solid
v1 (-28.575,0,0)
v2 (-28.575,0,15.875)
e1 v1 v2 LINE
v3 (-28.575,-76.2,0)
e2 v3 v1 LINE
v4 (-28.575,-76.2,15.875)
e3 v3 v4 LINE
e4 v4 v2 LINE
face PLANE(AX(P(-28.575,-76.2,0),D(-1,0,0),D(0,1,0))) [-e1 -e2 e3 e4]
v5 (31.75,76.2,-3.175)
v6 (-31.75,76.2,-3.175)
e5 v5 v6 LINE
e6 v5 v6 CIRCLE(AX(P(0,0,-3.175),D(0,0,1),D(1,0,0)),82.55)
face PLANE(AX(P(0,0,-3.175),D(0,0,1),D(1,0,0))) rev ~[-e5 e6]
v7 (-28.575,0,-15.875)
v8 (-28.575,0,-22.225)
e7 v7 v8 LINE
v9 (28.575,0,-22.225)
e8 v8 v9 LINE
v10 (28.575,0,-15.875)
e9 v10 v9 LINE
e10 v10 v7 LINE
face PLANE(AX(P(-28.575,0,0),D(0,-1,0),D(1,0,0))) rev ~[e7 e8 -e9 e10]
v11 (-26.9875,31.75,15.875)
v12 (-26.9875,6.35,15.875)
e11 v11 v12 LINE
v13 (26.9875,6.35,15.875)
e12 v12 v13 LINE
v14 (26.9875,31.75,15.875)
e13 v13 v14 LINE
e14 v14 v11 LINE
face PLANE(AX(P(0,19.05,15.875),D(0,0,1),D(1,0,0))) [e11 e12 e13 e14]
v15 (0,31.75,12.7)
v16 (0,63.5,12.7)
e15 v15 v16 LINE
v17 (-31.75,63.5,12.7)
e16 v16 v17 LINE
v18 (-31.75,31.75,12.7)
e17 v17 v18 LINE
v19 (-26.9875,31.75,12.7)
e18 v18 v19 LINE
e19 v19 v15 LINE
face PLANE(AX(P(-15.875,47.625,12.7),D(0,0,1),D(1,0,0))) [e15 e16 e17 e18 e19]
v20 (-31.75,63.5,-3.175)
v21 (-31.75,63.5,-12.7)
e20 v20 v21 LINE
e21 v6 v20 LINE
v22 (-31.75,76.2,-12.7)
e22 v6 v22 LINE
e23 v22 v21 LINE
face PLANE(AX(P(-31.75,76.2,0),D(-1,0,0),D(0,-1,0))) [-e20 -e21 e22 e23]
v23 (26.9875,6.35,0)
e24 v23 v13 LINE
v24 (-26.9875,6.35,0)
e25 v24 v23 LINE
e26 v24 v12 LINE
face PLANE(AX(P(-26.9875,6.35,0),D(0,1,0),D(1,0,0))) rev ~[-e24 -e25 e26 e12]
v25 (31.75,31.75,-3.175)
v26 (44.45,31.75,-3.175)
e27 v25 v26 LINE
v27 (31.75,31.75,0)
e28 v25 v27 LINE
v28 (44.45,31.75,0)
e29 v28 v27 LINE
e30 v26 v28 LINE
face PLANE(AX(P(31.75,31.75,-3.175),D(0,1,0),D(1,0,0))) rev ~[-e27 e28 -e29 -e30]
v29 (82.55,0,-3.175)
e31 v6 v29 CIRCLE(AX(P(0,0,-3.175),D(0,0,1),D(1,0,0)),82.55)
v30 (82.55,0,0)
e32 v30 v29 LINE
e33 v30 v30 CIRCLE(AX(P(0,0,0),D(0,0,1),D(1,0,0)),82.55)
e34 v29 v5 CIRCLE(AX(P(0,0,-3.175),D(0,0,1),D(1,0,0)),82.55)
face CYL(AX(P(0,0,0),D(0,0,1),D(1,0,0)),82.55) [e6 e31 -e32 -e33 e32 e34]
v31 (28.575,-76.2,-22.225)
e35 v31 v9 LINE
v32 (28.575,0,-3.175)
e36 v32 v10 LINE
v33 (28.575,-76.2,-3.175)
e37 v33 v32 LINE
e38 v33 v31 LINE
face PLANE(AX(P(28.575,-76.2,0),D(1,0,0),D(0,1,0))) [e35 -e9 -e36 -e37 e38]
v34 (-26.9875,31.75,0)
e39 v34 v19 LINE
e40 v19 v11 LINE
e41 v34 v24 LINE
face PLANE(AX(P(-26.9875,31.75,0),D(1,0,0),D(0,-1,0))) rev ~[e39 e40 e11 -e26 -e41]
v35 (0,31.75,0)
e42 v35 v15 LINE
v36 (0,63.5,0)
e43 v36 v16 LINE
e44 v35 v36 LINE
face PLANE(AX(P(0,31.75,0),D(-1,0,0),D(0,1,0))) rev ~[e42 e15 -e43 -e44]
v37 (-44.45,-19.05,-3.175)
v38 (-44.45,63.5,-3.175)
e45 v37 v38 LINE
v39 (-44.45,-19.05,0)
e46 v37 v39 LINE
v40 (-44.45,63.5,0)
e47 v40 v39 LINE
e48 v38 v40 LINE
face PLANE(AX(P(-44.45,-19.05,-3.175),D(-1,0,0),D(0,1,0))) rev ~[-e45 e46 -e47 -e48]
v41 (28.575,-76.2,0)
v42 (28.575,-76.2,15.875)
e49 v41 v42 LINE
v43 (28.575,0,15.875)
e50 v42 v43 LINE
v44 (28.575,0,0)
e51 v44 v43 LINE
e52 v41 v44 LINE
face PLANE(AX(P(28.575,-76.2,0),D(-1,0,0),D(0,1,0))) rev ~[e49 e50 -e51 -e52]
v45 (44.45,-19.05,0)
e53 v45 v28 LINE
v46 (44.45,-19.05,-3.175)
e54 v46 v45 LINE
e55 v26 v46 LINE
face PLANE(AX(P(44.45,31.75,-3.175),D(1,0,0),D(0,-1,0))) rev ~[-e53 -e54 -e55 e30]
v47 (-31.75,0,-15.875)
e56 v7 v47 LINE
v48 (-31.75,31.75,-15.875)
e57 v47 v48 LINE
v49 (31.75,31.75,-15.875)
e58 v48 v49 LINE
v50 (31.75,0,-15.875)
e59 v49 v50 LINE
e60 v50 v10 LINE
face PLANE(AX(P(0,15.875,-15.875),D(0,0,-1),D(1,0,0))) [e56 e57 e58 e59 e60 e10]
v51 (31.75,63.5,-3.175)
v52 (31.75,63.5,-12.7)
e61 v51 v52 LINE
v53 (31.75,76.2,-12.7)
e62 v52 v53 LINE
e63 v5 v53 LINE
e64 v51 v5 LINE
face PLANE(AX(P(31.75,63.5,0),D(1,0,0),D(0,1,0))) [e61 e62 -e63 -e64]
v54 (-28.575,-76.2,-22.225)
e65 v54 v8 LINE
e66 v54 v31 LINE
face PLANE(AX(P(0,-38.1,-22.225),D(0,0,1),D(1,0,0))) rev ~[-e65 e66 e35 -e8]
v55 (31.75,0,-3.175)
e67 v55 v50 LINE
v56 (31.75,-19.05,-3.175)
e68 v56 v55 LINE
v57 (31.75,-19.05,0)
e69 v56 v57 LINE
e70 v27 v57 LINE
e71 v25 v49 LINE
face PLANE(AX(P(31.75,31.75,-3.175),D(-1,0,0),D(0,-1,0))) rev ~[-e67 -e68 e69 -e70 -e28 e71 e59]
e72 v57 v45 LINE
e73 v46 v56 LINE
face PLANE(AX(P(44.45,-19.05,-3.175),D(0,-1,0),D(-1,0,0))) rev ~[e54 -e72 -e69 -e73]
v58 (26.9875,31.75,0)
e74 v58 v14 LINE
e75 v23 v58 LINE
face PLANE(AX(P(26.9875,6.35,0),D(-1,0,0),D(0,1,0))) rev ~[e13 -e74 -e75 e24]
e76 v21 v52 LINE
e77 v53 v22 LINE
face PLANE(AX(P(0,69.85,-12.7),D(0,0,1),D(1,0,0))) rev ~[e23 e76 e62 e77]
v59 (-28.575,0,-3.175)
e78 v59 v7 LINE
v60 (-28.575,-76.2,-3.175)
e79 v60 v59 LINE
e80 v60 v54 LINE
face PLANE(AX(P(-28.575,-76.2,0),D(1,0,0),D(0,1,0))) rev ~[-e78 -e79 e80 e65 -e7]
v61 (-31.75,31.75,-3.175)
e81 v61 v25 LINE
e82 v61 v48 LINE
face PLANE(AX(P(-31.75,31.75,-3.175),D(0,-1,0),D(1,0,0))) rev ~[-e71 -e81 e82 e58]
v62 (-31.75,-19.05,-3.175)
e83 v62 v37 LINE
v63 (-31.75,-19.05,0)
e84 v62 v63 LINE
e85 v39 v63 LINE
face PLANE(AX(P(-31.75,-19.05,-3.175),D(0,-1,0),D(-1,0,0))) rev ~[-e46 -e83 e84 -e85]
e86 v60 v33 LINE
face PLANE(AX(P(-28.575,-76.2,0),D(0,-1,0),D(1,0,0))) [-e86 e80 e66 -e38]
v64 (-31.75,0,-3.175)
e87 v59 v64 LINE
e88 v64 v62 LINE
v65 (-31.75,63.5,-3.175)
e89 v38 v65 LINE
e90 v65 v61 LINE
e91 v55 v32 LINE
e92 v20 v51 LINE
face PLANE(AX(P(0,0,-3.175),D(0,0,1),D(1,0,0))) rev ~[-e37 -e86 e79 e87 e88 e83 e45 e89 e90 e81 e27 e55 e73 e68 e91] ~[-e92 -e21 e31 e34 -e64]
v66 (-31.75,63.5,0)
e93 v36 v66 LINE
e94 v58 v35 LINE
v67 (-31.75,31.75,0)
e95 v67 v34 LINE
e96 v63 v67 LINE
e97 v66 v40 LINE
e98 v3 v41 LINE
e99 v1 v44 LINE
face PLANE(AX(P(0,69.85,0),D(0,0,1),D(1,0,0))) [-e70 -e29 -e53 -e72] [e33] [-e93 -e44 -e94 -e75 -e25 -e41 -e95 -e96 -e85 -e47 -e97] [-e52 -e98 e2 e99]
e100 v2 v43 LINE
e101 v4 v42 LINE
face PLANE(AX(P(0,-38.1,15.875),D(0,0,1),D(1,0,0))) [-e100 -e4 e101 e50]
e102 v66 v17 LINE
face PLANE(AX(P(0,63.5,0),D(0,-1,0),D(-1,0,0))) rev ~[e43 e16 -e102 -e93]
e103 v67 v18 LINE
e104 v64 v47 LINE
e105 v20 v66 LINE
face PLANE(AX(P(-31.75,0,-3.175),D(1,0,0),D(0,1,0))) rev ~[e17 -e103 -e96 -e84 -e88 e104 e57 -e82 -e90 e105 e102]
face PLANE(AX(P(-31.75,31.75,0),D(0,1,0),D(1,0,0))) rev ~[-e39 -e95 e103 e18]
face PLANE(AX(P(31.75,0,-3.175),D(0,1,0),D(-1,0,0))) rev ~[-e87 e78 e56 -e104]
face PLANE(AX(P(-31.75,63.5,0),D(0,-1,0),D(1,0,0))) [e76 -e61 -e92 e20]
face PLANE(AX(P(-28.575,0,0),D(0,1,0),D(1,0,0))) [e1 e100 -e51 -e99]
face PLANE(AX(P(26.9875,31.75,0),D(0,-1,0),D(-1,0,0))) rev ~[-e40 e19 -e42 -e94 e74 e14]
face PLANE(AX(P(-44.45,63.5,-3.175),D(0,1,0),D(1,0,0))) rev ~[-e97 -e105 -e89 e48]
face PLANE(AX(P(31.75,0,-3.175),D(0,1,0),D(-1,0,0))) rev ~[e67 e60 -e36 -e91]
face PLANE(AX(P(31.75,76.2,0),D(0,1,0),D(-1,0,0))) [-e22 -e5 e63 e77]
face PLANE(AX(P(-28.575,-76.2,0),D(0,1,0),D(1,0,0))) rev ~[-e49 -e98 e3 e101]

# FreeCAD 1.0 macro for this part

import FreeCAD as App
import Part
import Sketcher
from FreeCAD import Vector
Q = App.Units.Quantity


def add_polygon(sketch, points):
    """Adds a closed chain of lines whose ends are joined by coincident constraints."""
    first, n = sketch.GeometryCount, len(points)
    for a, b in zip(points, points[1:] + points[:1]):
        sketch.addGeometry(Part.LineSegment(App.Vector(*a, 0), App.Vector(*b, 0)), False)
    for i in range(n):
        sketch.addConstraint(Sketcher.Constraint("Coincident", first + i, 2, first + (i + 1) % n, 1))

doc = App.newDocument("Part")
body = doc.addObject("PartDesign::Body", "Body")

# Sketch on XY plane
sketch1 = body.newObject("Sketcher::SketchObject", "Sketch")
sketch1.AttachmentSupport = (doc.getObject("XY_Plane"), [""])
sketch1.MapMode = "FlatFace"
sketch1.addGeometry(Part.Circle(Vector(0, 0, 0), Vector(0, 0, 1), 83), False)
sketch1.addConstraint(Sketcher.Constraint("Coincident", 0, 3, -1, 1))
sketch1.addConstraint(Sketcher.Constraint("Diameter", 0, Q("6.5 in")))
pad1 = body.newObject("PartDesign::Pad", "Pad")
pad1.Profile = sketch1
pad1.Length = Q("0.125 in")
pad1.Reversed = True

# Sketch on XY plane
sketch2 = body.newObject("Sketcher::SketchObject", "Sketch001")
sketch2.AttachmentSupport = (doc.getObject("XY_Plane"), [""])
sketch2.MapMode = "FlatFace"
add_polygon(sketch2, [(-29, 0), (-29, -76), (29, -76), (29, 0)])  # lines 0-3
sketch2.addConstraint(Sketcher.Constraint("Vertical", 0))
sketch2.addConstraint(Sketcher.Constraint("Horizontal", 1))
sketch2.addConstraint(Sketcher.Constraint("Vertical", 2))
sketch2.addConstraint(Sketcher.Constraint("Horizontal", 3))
sketch2.addConstraint(Sketcher.Constraint("Symmetric", 2, 2, 3, 2, -1, 1))
sketch2.addConstraint(Sketcher.Constraint("DistanceY", 0, 2, 0, 1, Q("3 in")))
sketch2.addConstraint(Sketcher.Constraint("DistanceX", 1, 1, 1, 2, Q("2.25 in")))
pad2 = body.newObject("PartDesign::Pad", "Pad001")
pad2.Profile = sketch2
pad2.Length = Q("0.625 in")

# Sketch on XY plane
sketch3 = body.newObject("Sketcher::SketchObject", "Sketch002")
sketch3.AttachmentSupport = (doc.getObject("XY_Plane"), [""])
sketch3.MapMode = "FlatFace"
add_polygon(sketch3, [(-29, 0), (-29, -76), (29, -76), (29, 0)])  # lines 0-3
sketch3.addConstraint(Sketcher.Constraint("Vertical", 0))
sketch3.addConstraint(Sketcher.Constraint("Horizontal", 1))
sketch3.addConstraint(Sketcher.Constraint("Vertical", 2))
sketch3.addConstraint(Sketcher.Constraint("Horizontal", 3))
sketch3.addConstraint(Sketcher.Constraint("Symmetric", 2, 2, 3, 2, -1, 1))
sketch3.addConstraint(Sketcher.Constraint("DistanceY", 0, 2, 0, 1, Q("3 in")))
sketch3.addConstraint(Sketcher.Constraint("DistanceX", 1, 1, 1, 2, Q("2.25 in")))
pad3 = body.newObject("PartDesign::Pad", "Pad002")
pad3.Profile = sketch3
pad3.Length = Q("0.875 in")
pad3.Reversed = True

# Sketch on XY plane
sketch4 = body.newObject("Sketcher::SketchObject", "Sketch003")
sketch4.AttachmentSupport = (doc.getObject("XY_Plane"), [""])
sketch4.MapMode = "FlatFace"
add_polygon(sketch4, [(-32, 76), (-32, 64), (32, 64), (32, 76)])  # lines 0-3
sketch4.addConstraint(Sketcher.Constraint("Vertical", 0))
sketch4.addConstraint(Sketcher.Constraint("Horizontal", 1))
sketch4.addConstraint(Sketcher.Constraint("Vertical", 2))
sketch4.addConstraint(Sketcher.Constraint("Horizontal", 3))
sketch4.addConstraint(Sketcher.Constraint("DistanceX", 1, 1, 1, 2, Q("2.5 in")))
sketch4.addConstraint(Sketcher.Constraint("DistanceY", 0, 2, 0, 1, Q("0.5 in")))
sketch4.addConstraint(Sketcher.Constraint("DistanceY", -1, 1, 2, 2, Q("3 in")))
sketch4.addConstraint(Sketcher.Constraint("DistanceX", 0, 2, -1, 1, Q("1.25 in")))
pad4 = body.newObject("PartDesign::Pad", "Pad003")
pad4.Profile = sketch4
pad4.Length = Q("0.5 in")
pad4.Reversed = True

# Sketch on XY plane
sketch5 = body.newObject("Sketcher::SketchObject", "Sketch004")
sketch5.AttachmentSupport = (doc.getObject("XY_Plane"), [""])
sketch5.MapMode = "FlatFace"
add_polygon(sketch5, [(0, 64), (-32, 64), (-32, 32), (0, 32)])  # lines 0-3
sketch5.addConstraint(Sketcher.Constraint("Horizontal", 0))
sketch5.addConstraint(Sketcher.Constraint("Vertical", 1))
sketch5.addConstraint(Sketcher.Constraint("Horizontal", 2))
sketch5.addConstraint(Sketcher.Constraint("Vertical", 3))
sketch5.addConstraint(Sketcher.Constraint("PointOnObject", 2, 2, -2))
sketch5.addConstraint(Sketcher.Constraint("Equal", 2, 1))
sketch5.addConstraint(Sketcher.Constraint("DistanceX", 0, 2, 0, 1, Q("1.25 in")))
sketch5.addConstraint(Sketcher.Constraint("DistanceY", -1, 1, 0, 2, Q("2.5 in")))
pad5 = body.newObject("PartDesign::Pad", "Pad004")
pad5.Profile = sketch5
pad5.Length = Q("0.5 in")

# Sketch on XY plane
sketch6 = body.newObject("Sketcher::SketchObject", "Sketch005")
sketch6.AttachmentSupport = (doc.getObject("XY_Plane"), [""])
sketch6.MapMode = "FlatFace"
add_polygon(sketch6, [(27, 32), (-27, 32), (-27, 6), (27, 6)])  # lines 0-3
sketch6.addConstraint(Sketcher.Constraint("Horizontal", 0))
sketch6.addConstraint(Sketcher.Constraint("Vertical", 1))
sketch6.addConstraint(Sketcher.Constraint("Horizontal", 2))
sketch6.addConstraint(Sketcher.Constraint("Vertical", 3))
sketch6.addConstraint(Sketcher.Constraint("DistanceY", 1, 2, 1, 1, Q("1 in")))
sketch6.addConstraint(Sketcher.Constraint("DistanceX", 0, 2, 0, 1, Q("2.125 in")))
sketch6.addConstraint(Sketcher.Constraint("DistanceY", -1, 1, 0, 2, Q("1.25 in")))
sketch6.addConstraint(Sketcher.Constraint("DistanceX", 0, 2, -1, 1, Q("1.0625 in")))
pad6 = body.newObject("PartDesign::Pad", "Pad005")
pad6.Profile = sketch6
pad6.Length = Q("0.625 in")

# Sketch on XY plane
sketch7 = body.newObject("Sketcher::SketchObject", "Sketch006")
sketch7.AttachmentSupport = (doc.getObject("XY_Plane"), [""])
sketch7.MapMode = "FlatFace"
sketch7.AttachmentOffset = App.Placement(Vector(0, 0, -0.125 * 25.4), App.Rotation())
add_polygon(sketch7, [(-32, 0), (-32, 32), (32, 32), (32, 0)])  # lines 0-3
sketch7.addConstraint(Sketcher.Constraint("Vertical", 0))
sketch7.addConstraint(Sketcher.Constraint("Horizontal", 1))
sketch7.addConstraint(Sketcher.Constraint("Vertical", 2))
sketch7.addConstraint(Sketcher.Constraint("Horizontal", 3))
sketch7.addConstraint(Sketcher.Constraint("Symmetric", 2, 2, 3, 2, -1, 1))
sketch7.addConstraint(Sketcher.Constraint("DistanceX", 1, 1, 1, 2, Q("2.5 in")))
sketch7.addConstraint(Sketcher.Constraint("DistanceY", 0, 1, 0, 2, Q("1.25 in")))
pad7 = body.newObject("PartDesign::Pad", "Pad006")
pad7.Profile = sketch7
pad7.Length = Q("0.5 in")
pad7.Reversed = True

# Sketch on XY plane
sketch8 = body.newObject("Sketcher::SketchObject", "Sketch007")
sketch8.AttachmentSupport = (doc.getObject("XY_Plane"), [""])
sketch8.MapMode = "FlatFace"
sketch8.AttachmentOffset = App.Placement(Vector(0, 0, -0.125 * 25.4), App.Rotation())
add_polygon(sketch8, [(32, 32), (44, 32), (44, -19), (32, -19)])  # lines 0-3
add_polygon(sketch8, [(-32, -19), (-44, -19), (-44, 64), (-32, 64)])  # lines 4-7
sketch8.addConstraint(Sketcher.Constraint("Horizontal", 0))
sketch8.addConstraint(Sketcher.Constraint("Vertical", 1))
sketch8.addConstraint(Sketcher.Constraint("Horizontal", 2))
sketch8.addConstraint(Sketcher.Constraint("Vertical", 3))
sketch8.addConstraint(Sketcher.Constraint("Horizontal", 4))
sketch8.addConstraint(Sketcher.Constraint("Vertical", 5))
sketch8.addConstraint(Sketcher.Constraint("Horizontal", 6))
sketch8.addConstraint(Sketcher.Constraint("Vertical", 7))
sketch8.addConstraint(Sketcher.Constraint("Symmetric", 1, 2, 4, 2, -2))
sketch8.addConstraint(Sketcher.Constraint("Equal", 2, 4))
sketch8.addConstraint(Sketcher.Constraint("DistanceY", 1, 2, 1, 1, Q("2 in")))
sketch8.addConstraint(Sketcher.Constraint("DistanceX", 0, 1, 0, 2, Q("0.5 in")))
sketch8.addConstraint(Sketcher.Constraint("DistanceX", 4, 2, 2, 2, Q("3 in")))
sketch8.addConstraint(Sketcher.Constraint("DistanceY", 5, 1, 5, 2, Q("3.25 in")))
sketch8.addConstraint(Sketcher.Constraint("DistanceY", -1, 1, 5, 2, Q("2.5 in")))
pocket1 = body.newObject("PartDesign::Pocket", "Pocket")
pocket1.Profile = sketch8
pocket1.Length = Q("1 in")
pocket1.Reversed = True

doc.recompute()
